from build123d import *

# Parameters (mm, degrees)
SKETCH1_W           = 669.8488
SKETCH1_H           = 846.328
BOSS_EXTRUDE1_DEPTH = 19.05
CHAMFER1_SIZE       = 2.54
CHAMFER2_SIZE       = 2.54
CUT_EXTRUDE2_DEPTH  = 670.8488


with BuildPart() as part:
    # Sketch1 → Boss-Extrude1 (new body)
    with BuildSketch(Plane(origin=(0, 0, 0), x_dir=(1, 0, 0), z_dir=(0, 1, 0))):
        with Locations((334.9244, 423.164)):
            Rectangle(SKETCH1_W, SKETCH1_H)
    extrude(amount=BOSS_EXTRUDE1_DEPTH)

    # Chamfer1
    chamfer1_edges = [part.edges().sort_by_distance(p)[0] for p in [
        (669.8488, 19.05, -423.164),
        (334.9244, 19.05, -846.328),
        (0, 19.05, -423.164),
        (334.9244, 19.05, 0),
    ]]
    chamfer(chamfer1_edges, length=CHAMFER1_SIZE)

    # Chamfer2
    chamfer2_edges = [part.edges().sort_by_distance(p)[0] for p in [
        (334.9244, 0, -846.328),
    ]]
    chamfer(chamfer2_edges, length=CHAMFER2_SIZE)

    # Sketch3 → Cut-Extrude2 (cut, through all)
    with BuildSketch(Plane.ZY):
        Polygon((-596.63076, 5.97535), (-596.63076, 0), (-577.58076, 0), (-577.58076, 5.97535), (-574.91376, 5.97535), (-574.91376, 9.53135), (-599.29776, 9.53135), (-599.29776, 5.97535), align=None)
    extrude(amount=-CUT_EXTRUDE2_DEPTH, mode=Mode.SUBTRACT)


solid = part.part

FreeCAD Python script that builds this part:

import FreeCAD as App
import Part
import Sketcher

V = App.Vector
Q = App.Units.Quantity


def edges_at(feature, points):
    """Names of the edges that pass closest to the given points."""
    edges = feature.Shape.Edges
    near = lambda p: min(range(len(edges)), key=lambda i: edges[i].distToShape(Part.Vertex(*p))[0])
    return sorted({f"Edge{near(p) + 1}" for p in points})


def add_polygon(sketch, points):
    """Adds a closed chain of lines whose ends are joined by coincident constraints."""
    first, n = sketch.GeometryCount, len(points)
    for a, b in zip(points, points[1:] + points[:1]):
        sketch.addGeometry(Part.LineSegment(App.Vector(*a, 0), App.Vector(*b, 0)), False)
    for i in range(n):
        sketch.addConstraint(Sketcher.Constraint("Coincident", first + i, 2, first + (i + 1) % n, 1))

doc = App.newDocument("Part")
body = doc.addObject("PartDesign::Body", "Body")

sketch1 = body.newObject("Sketcher::SketchObject", "Sketch")
sketch1.AttachmentSupport = (doc.getObject("XZ_Plane"), [""])
sketch1.MapMode = "FlatFace"
add_polygon(sketch1, [(0, -846), (0, 0), (670, 0), (670, -846)])
sketch1.addConstraint([
    Sketcher.Constraint("Vertical", 0),
    Sketcher.Constraint("Horizontal", 1),
    Sketcher.Constraint("Vertical", 2),
    Sketcher.Constraint("Horizontal", 3),
    Sketcher.Constraint("Coincident", 0, 2, -1, 1),
    Sketcher.Constraint("DistanceY", 0, 1, 0, 2, Q("33.32 in")),
    Sketcher.Constraint("DistanceX", 1, 1, 1, 2, Q("26.372 in")),
])
pad1 = body.newObject("PartDesign::Pad", "Pad")
pad1.Profile = sketch1
pad1.Length = Q("0.75 in")
pad1.Reversed = True
doc.recompute()

chamfer = body.newObject("PartDesign::Chamfer", "Chamfer")
chamfer.Base = (pad1, edges_at(pad1, [
    (669.849, 19.05, -423.164),
    (334.924, 19.05, -846.328),
    (0, 19.05, -423.164),
    (334.924, 19.05, 0),
]))
chamfer.Size = Q("0.1 in")
doc.recompute()

chamfer2 = body.newObject("PartDesign::Chamfer", "Chamfer001")
chamfer2.Base = (chamfer, edges_at(chamfer, [(334.924, 0, -846.328)]))
chamfer2.Size = Q("0.1 in")

sketch2 = body.newObject("Sketcher::SketchObject", "Sketch001")
sketch2.AttachmentSupport = (doc.getObject("YZ_Plane"), [""])
sketch2.MapMode = "FlatFace"
add_polygon(sketch2, [(6, -596.6), (0, -596.6), (0, -577.6), (6, -577.6), (6, -574.9), (9.5, -574.9), (9.5, -599.3), (6, -599.3)])
sketch2.addConstraint([
    Sketcher.Constraint("Horizontal", 0),
    Sketcher.Constraint("Vertical", 1),
    Sketcher.Constraint("Horizontal", 2),
    Sketcher.Constraint("Vertical", 3),
    Sketcher.Constraint("Horizontal", 4),
    Sketcher.Constraint("Vertical", 5),
    Sketcher.Constraint("Horizontal", 6),
    Sketcher.Constraint("Vertical", 7),
    Sketcher.Constraint("PointOnObject", 0, 2, -2),
    Sketcher.Constraint("Vertical", 3, 2, 6, 2),
    Sketcher.Constraint("Equal", 3, 7),
    Sketcher.Constraint("DistanceX", 4, 1, 4, 2, Q("0.14 in")),
    Sketcher.Constraint("DistanceY", 1, 1, 1, 2, Q("0.75 in")),
    Sketcher.Constraint("DistanceY", 5, 2, 5, 1, Q("0.96 in")),
    Sketcher.Constraint("DistanceY", 0, 2, -1, 1, Q("23.4894 in")),
    Sketcher.Constraint("DistanceX", 0, 2, 0, 1, 5.97535),
])
pocket1 = body.newObject("PartDesign::Pocket", "Pocket")
pocket1.Profile = sketch2
pocket1.Type = "ThroughAll"
pocket1.Reversed = True

doc.recompute()
